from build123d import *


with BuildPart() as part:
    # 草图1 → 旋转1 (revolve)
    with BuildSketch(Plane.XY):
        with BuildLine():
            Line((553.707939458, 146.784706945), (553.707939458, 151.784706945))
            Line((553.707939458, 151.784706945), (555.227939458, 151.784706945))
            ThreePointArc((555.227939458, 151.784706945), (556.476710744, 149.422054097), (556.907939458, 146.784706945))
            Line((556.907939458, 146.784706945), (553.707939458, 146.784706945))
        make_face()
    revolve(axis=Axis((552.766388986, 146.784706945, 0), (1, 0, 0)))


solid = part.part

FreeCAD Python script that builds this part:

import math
import FreeCAD as App
import Part
import Sketcher

V = App.Vector
Q = App.Units.Quantity

doc = App.newDocument("Part")
body = doc.addObject("PartDesign::Body", "Body")

sketch1 = body.newObject("Sketcher::SketchObject", "Sketch")
sketch1.AttachmentSupport = (doc.getObject("XY_Plane"), [""])
sketch1.MapMode = "FlatFace"
sketch1.addGeometry(Part.LineSegment(V(553.7, 151.8, 0), V(553.7, 146.8, 0)), False)
sketch1.addGeometry(Part.LineSegment(V(553.7, 146.8, 0), V(556.9, 146.8, 0)), False)
sketch1.addGeometry(Part.ArcOfCircle(Part.Circle(V(548.6, 146.8, 0), V(0, 0, 1), 8.3), math.radians(0), math.radians(37)), False)
sketch1.addGeometry(Part.LineSegment(V(555.2, 151.8, 0), V(553.7, 151.8, 0)), False)
sketch1.addGeometry(Part.LineSegment(V(548.6, 146.8, 0), V(556.9, 146.8, 0)), True)
sketch1.addConstraint(Sketcher.Constraint("Coincident", 0, 2, 1, 1))
sketch1.addConstraint(Sketcher.Constraint("Coincident", 1, 2, 2, 1))
sketch1.addConstraint(Sketcher.Constraint("Coincident", 2, 2, 3, 1))
sketch1.addConstraint(Sketcher.Constraint("Coincident", 3, 2, 0, 1))
sketch1.addConstraint(Sketcher.Constraint("Vertical", 0))
sketch1.addConstraint(Sketcher.Constraint("Horizontal", 1))
sketch1.addConstraint(Sketcher.Constraint("Horizontal", 3))
sketch1.addConstraint(Sketcher.Constraint("Horizontal", 4))
sketch1.addConstraint(Sketcher.Constraint("Coincident", 4, 1, 2, 3))
sketch1.addConstraint(Sketcher.Constraint("Coincident", 4, 2, 1, 2))
sketch1.addConstraint(Sketcher.Constraint("DistanceY", 0, 2, 0, 1, Q("5 mm")))
sketch1.addConstraint(Sketcher.Constraint("DistanceX", 1, 1, 1, 2, Q("3.2 mm")))
sketch1.addConstraint(Sketcher.Constraint("DistanceX", 3, 2, 3, 1, Q("1.52 mm")))
sketch1.addConstraint(Sketcher.Constraint("DistanceX", -1, 1, 0, 2, Q("553.707939 mm")))
sketch1.addConstraint(Sketcher.Constraint("DistanceY", -1, 1, 2, 3, Q("146.784707 mm")))
revolution = body.newObject("PartDesign::Revolution", "Revolution")
revolution.Profile = sketch1
revolution.ReferenceAxis = (sketch1, ["Axis0"])
revolution.Angle = 360

doc.recompute()
